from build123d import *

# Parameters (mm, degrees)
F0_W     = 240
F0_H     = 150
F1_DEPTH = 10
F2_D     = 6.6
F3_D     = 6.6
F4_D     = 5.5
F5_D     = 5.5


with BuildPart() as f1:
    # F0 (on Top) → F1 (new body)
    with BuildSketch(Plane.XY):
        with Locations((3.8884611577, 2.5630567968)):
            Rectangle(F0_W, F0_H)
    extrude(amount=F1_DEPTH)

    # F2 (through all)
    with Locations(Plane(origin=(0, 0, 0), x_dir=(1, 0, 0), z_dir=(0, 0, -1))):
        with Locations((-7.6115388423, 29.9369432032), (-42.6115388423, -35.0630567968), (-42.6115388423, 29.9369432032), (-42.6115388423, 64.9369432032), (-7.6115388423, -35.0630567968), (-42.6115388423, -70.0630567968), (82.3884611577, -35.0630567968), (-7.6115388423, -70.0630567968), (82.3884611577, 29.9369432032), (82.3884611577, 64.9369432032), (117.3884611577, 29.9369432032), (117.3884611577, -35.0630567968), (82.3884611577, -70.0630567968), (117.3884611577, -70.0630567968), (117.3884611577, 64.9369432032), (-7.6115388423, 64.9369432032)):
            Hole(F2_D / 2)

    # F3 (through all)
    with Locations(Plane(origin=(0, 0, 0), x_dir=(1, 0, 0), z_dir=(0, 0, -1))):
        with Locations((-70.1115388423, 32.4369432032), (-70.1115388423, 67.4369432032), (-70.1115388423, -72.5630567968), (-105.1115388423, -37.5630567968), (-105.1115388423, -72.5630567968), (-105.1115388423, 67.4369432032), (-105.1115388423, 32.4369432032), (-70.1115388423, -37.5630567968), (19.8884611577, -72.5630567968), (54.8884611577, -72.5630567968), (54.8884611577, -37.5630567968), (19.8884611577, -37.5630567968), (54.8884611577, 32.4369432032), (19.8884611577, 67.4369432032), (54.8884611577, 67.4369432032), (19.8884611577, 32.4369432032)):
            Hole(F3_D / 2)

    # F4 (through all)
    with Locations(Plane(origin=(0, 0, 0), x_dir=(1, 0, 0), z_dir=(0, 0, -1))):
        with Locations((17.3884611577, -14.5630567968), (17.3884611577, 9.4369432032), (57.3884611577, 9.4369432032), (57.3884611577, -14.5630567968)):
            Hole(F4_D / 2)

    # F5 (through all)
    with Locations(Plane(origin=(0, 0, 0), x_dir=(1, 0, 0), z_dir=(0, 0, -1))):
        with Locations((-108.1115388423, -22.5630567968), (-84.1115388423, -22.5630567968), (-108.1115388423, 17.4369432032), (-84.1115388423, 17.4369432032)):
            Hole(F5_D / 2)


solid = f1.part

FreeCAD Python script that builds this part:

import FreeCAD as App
import Part
import Sketcher
Q = App.Units.Quantity

doc = App.newDocument("Part")
params = doc.addObject("Spreadsheet::Sheet", "Params")
for row, (alias, value) in enumerate([
    ("sketch1_width", "240 mm"),
    ("sketch1_height", "150 mm"),
    ("pad1_length", "10 mm"),
    ("sketch2_diameter", "6.6 mm"),
    ("hole_diameter", "6.6 mm"),
    ("sketch3_diameter", "6.6 mm"),
    ("hole2_diameter", "6.6 mm"),
    ("sketch4_diameter", "5.5 mm"),
    ("hole3_diameter", "5.5 mm"),
    ("sketch5_diameter", "5.5 mm"),
    ("hole4_diameter", "5.5 mm"),
], start=1):
    params.set(f"A{row}", alias)
    params.set(f"B{row}", "=" + value)
    params.setAlias(f"B{row}", alias)

body = doc.addObject("PartDesign::Body", "Body")

sketch1 = doc.addObject("Sketcher::SketchObject", "Sketch")
body.addObject(sketch1)
sketch1.AttachmentSupport = (doc.XY_Plane, [""])
sketch1.MapMode = "FlatFace"
sketch1.addGeometry([
    Part.LineSegment(App.Vector(-116, 78, 0), App.Vector(-116, -72, 0)),
    Part.LineSegment(App.Vector(-116, -72, 0), App.Vector(124, -72, 0)),
    Part.LineSegment(App.Vector(124, -72, 0), App.Vector(124, 78, 0)),
    Part.LineSegment(App.Vector(124, 78, 0), App.Vector(-116, 78, 0)),
], False)
sketch1.addConstraint([
    Sketcher.Constraint("Coincident", 0, 2, 1, 1),
    Sketcher.Constraint("Coincident", 1, 2, 2, 1),
    Sketcher.Constraint("Coincident", 2, 2, 3, 1),
    Sketcher.Constraint("Coincident", 3, 2, 0, 1),
    Sketcher.Constraint("Vertical", 0),
    Sketcher.Constraint("Horizontal", 1),
    Sketcher.Constraint("Vertical", 2),
    Sketcher.Constraint("Horizontal", 3),
    Sketcher.Constraint("DistanceX", 1, 1, 1, 2, Q("240 mm")),
    Sketcher.Constraint("DistanceY", 0, 2, 0, 1, Q("150 mm")),
    Sketcher.Constraint("DistanceX", 0, 2, -1, 1, Q("116.111539 mm")),
    Sketcher.Constraint("DistanceY", 0, 2, -1, 1, Q("72.436943 mm")),
])
sketch1.setExpression("Constraints[8]", "Params.sketch1_width")
sketch1.setExpression("Constraints[9]", "Params.sketch1_height")
pad1 = doc.addObject("PartDesign::Pad", "Pad")
body.addObject(pad1)
pad1.Profile = sketch1
pad1.setExpression("Length", "Params.pad1_length")

sketch2 = doc.addObject("Sketcher::SketchObject", "Sketch001")
body.addObject(sketch2)
sketch2.AttachmentSupport = (doc.XY_Plane, [""])
sketch2.MapMode = "FlatFace"
sketch2.addGeometry([
    Part.Circle(App.Vector(-7.6, -29.9, 0), App.Vector(0, 0, 1), 3.3),
    Part.Circle(App.Vector(-42.6, 35.1, 0), App.Vector(0, 0, 1), 3.3),
    Part.Circle(App.Vector(-42.6, -29.9, 0), App.Vector(0, 0, 1), 3.3),
    Part.Circle(App.Vector(-42.6, -64.9, 0), App.Vector(0, 0, 1), 3.3),
    Part.Circle(App.Vector(-7.6, 35.1, 0), App.Vector(0, 0, 1), 3.3),
    Part.Circle(App.Vector(-42.6, 70.1, 0), App.Vector(0, 0, 1), 3.3),
    Part.Circle(App.Vector(82.4, 35.1, 0), App.Vector(0, 0, 1), 3.3),
    Part.Circle(App.Vector(-7.6, 70.1, 0), App.Vector(0, 0, 1), 3.3),
    Part.Circle(App.Vector(82.4, -29.9, 0), App.Vector(0, 0, 1), 3.3),
    Part.Circle(App.Vector(82.4, -64.9, 0), App.Vector(0, 0, 1), 3.3),
    Part.Circle(App.Vector(117.4, -29.9, 0), App.Vector(0, 0, 1), 3.3),
    Part.Circle(App.Vector(117.4, 35.1, 0), App.Vector(0, 0, 1), 3.3),
    Part.Circle(App.Vector(82.4, 70.1, 0), App.Vector(0, 0, 1), 3.3),
    Part.Circle(App.Vector(117.4, 70.1, 0), App.Vector(0, 0, 1), 3.3),
    Part.Circle(App.Vector(117.4, -64.9, 0), App.Vector(0, 0, 1), 3.3),
    Part.Circle(App.Vector(-7.6, -64.9, 0), App.Vector(0, 0, 1), 3.3),
], False)
sketch2.addConstraint([
    Sketcher.Constraint("Equal", 0, 1),
    Sketcher.Constraint("Equal", 1, 2),
    Sketcher.Constraint("Equal", 2, 3),
    Sketcher.Constraint("Equal", 3, 4),
    Sketcher.Constraint("Equal", 4, 5),
    Sketcher.Constraint("Equal", 5, 6),
    Sketcher.Constraint("Equal", 6, 7),
    Sketcher.Constraint("Equal", 7, 8),
    Sketcher.Constraint("Equal", 8, 9),
    Sketcher.Constraint("Equal", 9, 10),
    Sketcher.Constraint("Equal", 10, 11),
    Sketcher.Constraint("Equal", 11, 12),
    Sketcher.Constraint("Equal", 12, 13),
    Sketcher.Constraint("Equal", 13, 14),
    Sketcher.Constraint("Equal", 14, 15),
    Sketcher.Constraint("Horizontal", 0, 3, 2, 3),
    Sketcher.Constraint("Horizontal", 1, 3, 4, 3),
    Sketcher.Constraint("Horizontal", 4, 3, 6, 3),
    Sketcher.Constraint("Horizontal", 5, 3, 7, 3),
    Sketcher.Constraint("Horizontal", 2, 3, 8, 3),
    Sketcher.Constraint("Horizontal", 3, 3, 9, 3),
    Sketcher.Constraint("Horizontal", 8, 3, 10, 3),
    Sketcher.Constraint("Horizontal", 6, 3, 11, 3),
    Sketcher.Constraint("Horizontal", 7, 3, 12, 3),
    Sketcher.Constraint("Horizontal", 12, 3, 13, 3),
    Sketcher.Constraint("Horizontal", 9, 3, 14, 3),
    Sketcher.Constraint("Horizontal", 14, 3, 15, 3),
    Sketcher.Constraint("Vertical", 1, 3, 2, 3),
    Sketcher.Constraint("Vertical", 2, 3, 3, 3),
    Sketcher.Constraint("Vertical", 0, 3, 4, 3),
    Sketcher.Constraint("Vertical", 3, 3, 5, 3),
    Sketcher.Constraint("Vertical", 4, 3, 7, 3),
    Sketcher.Constraint("Vertical", 6, 3, 8, 3),
    Sketcher.Constraint("Vertical", 8, 3, 9, 3),
    Sketcher.Constraint("Vertical", 10, 3, 11, 3),
    Sketcher.Constraint("Vertical", 9, 3, 12, 3),
    Sketcher.Constraint("Vertical", 11, 3, 13, 3),
    Sketcher.Constraint("Vertical", 13, 3, 14, 3),
    Sketcher.Constraint("Vertical", 7, 3, 15, 3),
    Sketcher.Constraint("Diameter", 0, Q("6.6 mm")),
    Sketcher.Constraint("DistanceX", 1, 3, 0, 3, Q("35 mm")),
    Sketcher.Constraint("DistanceY", 0, 3, 1, 3, Q("65 mm")),
    Sketcher.Constraint("DistanceY", 3, 3, 2, 3, Q("35 mm")),
    Sketcher.Constraint("DistanceY", 1, 3, 5, 3, Q("35 mm")),
    Sketcher.Constraint("DistanceX", 4, 3, 6, 3, Q("90 mm")),
    Sketcher.Constraint("DistanceX", 8, 3, 10, 3, Q("35 mm")),
    Sketcher.Constraint("DistanceX", 0, 3, -1, 1, Q("7.611539 mm")),
    Sketcher.Constraint("DistanceY", 0, 3, -1, 1, Q("29.936943 mm")),
])
sketch2.setExpression("Constraints[39]", "Params.sketch2_diameter")
doc.recompute()
hole = doc.addObject("PartDesign::Hole", "Hole")
body.addObject(hole)
hole.Profile = sketch2
hole.ThreadType = "None"
hole.setExpression("Diameter", "Params.hole_diameter")
hole.DepthType = "ThroughAll"
hole.Reversed = True

sketch3 = doc.addObject("Sketcher::SketchObject", "Sketch002")
body.addObject(sketch3)
sketch3.AttachmentSupport = (doc.XY_Plane, [""])
sketch3.MapMode = "FlatFace"
sketch3.addGeometry([
    Part.Circle(App.Vector(-70.1, -32.4, 0), App.Vector(0, 0, 1), 3.3),
    Part.Circle(App.Vector(-70.1, -67.4, 0), App.Vector(0, 0, 1), 3.3),
    Part.Circle(App.Vector(-70.1, 72.6, 0), App.Vector(0, 0, 1), 3.3),
    Part.Circle(App.Vector(-105.1, 37.6, 0), App.Vector(0, 0, 1), 3.3),
    Part.Circle(App.Vector(-105.1, 72.6, 0), App.Vector(0, 0, 1), 3.3),
    Part.Circle(App.Vector(-105.1, -67.4, 0), App.Vector(0, 0, 1), 3.3),
    Part.Circle(App.Vector(-105.1, -32.4, 0), App.Vector(0, 0, 1), 3.3),
    Part.Circle(App.Vector(-70.1, 37.6, 0), App.Vector(0, 0, 1), 3.3),
    Part.Circle(App.Vector(19.9, 72.6, 0), App.Vector(0, 0, 1), 3.3),
    Part.Circle(App.Vector(54.9, 72.6, 0), App.Vector(0, 0, 1), 3.3),
    Part.Circle(App.Vector(54.9, 37.6, 0), App.Vector(0, 0, 1), 3.3),
    Part.Circle(App.Vector(19.9, 37.6, 0), App.Vector(0, 0, 1), 3.3),
    Part.Circle(App.Vector(54.9, -32.4, 0), App.Vector(0, 0, 1), 3.3),
    Part.Circle(App.Vector(19.9, -67.4, 0), App.Vector(0, 0, 1), 3.3),
    Part.Circle(App.Vector(54.9, -67.4, 0), App.Vector(0, 0, 1), 3.3),
    Part.Circle(App.Vector(19.9, -32.4, 0), App.Vector(0, 0, 1), 3.3),
], False)
sketch3.addConstraint([
    Sketcher.Constraint("Equal", 0, 1),
    Sketcher.Constraint("Equal", 1, 2),
    Sketcher.Constraint("Equal", 2, 3),
    Sketcher.Constraint("Equal", 3, 4),
    Sketcher.Constraint("Equal", 4, 5),
    Sketcher.Constraint("Equal", 5, 6),
    Sketcher.Constraint("Equal", 6, 7),
    Sketcher.Constraint("Equal", 7, 8),
    Sketcher.Constraint("Equal", 8, 9),
    Sketcher.Constraint("Equal", 9, 10),
    Sketcher.Constraint("Equal", 10, 11),
    Sketcher.Constraint("Equal", 11, 12),
    Sketcher.Constraint("Equal", 12, 13),
    Sketcher.Constraint("Equal", 13, 14),
    Sketcher.Constraint("Equal", 14, 15),
    Sketcher.Constraint("Horizontal", 2, 3, 4, 3),
    Sketcher.Constraint("Horizontal", 1, 3, 5, 3),
    Sketcher.Constraint("Horizontal", 0, 3, 6, 3),
    Sketcher.Constraint("Horizontal", 3, 3, 7, 3),
    Sketcher.Constraint("Horizontal", 4, 3, 8, 3),
    Sketcher.Constraint("Horizontal", 8, 3, 9, 3),
    Sketcher.Constraint("Horizontal", 7, 3, 10, 3),
    Sketcher.Constraint("Horizontal", 10, 3, 11, 3),
    Sketcher.Constraint("Horizontal", 6, 3, 12, 3),
    Sketcher.Constraint("Horizontal", 5, 3, 13, 3),
    Sketcher.Constraint("Horizontal", 13, 3, 14, 3),
    Sketcher.Constraint("Horizontal", 12, 3, 15, 3),
    Sketcher.Constraint("Vertical", 0, 3, 1, 3),
    Sketcher.Constraint("Vertical", 1, 3, 2, 3),
    Sketcher.Constraint("Vertical", 3, 3, 4, 3),
    Sketcher.Constraint("Vertical", 4, 3, 5, 3),
    Sketcher.Constraint("Vertical", 5, 3, 6, 3),
    Sketcher.Constraint("Vertical", 2, 3, 7, 3),
    Sketcher.Constraint("Vertical", 9, 3, 10, 3),
    Sketcher.Constraint("Vertical", 8, 3, 11, 3),
    Sketcher.Constraint("Vertical", 10, 3, 12, 3),
    Sketcher.Constraint("Vertical", 11, 3, 13, 3),
    Sketcher.Constraint("Vertical", 12, 3, 14, 3),
    Sketcher.Constraint("Vertical", 13, 3, 15, 3),
    Sketcher.Constraint("Diameter", 0, Q("6.6 mm")),
    Sketcher.Constraint("DistanceY", 1, 3, 0, 3, Q("35 mm")),
    Sketcher.Constraint("DistanceY", 0, 3, 2, 3, Q("105 mm")),
    Sketcher.Constraint("DistanceX", 3, 3, 2, 3, Q("35 mm")),
    Sketcher.Constraint("DistanceY", 3, 3, 2, 3, Q("35 mm")),
    Sketcher.Constraint("DistanceX", 2, 3, 8, 3, Q("90 mm")),
    Sketcher.Constraint("DistanceX", 8, 3, 9, 3, Q("35 mm")),
    Sketcher.Constraint("DistanceX", 0, 3, -1, 1, Q("70.111539 mm")),
    Sketcher.Constraint("DistanceY", 0, 3, -1, 1, Q("32.436943 mm")),
])
sketch3.setExpression("Constraints[39]", "Params.sketch3_diameter")
doc.recompute()
hole2 = doc.addObject("PartDesign::Hole", "Hole001")
body.addObject(hole2)
hole2.Profile = sketch3
hole2.ThreadType = "None"
hole2.setExpression("Diameter", "Params.hole2_diameter")
hole2.DepthType = "ThroughAll"
hole2.Reversed = True

sketch4 = doc.addObject("Sketcher::SketchObject", "Sketch003")
body.addObject(sketch4)
sketch4.AttachmentSupport = (doc.XY_Plane, [""])
sketch4.MapMode = "FlatFace"
sketch4.addGeometry([
    Part.Circle(App.Vector(17.4, 14.6, 0), App.Vector(0, 0, 1), 2.8),
    Part.Circle(App.Vector(17.4, -9.4, 0), App.Vector(0, 0, 1), 2.8),
    Part.Circle(App.Vector(57.4, -9.4, 0), App.Vector(0, 0, 1), 2.8),
    Part.Circle(App.Vector(57.4, 14.6, 0), App.Vector(0, 0, 1), 2.8),
], False)
sketch4.addConstraint([
    Sketcher.Constraint("Equal", 0, 1),
    Sketcher.Constraint("Equal", 1, 2),
    Sketcher.Constraint("Equal", 2, 3),
    Sketcher.Constraint("Horizontal", 1, 3, 2, 3),
    Sketcher.Constraint("Horizontal", 0, 3, 3, 3),
    Sketcher.Constraint("Vertical", 0, 3, 1, 3),
    Sketcher.Constraint("Vertical", 2, 3, 3, 3),
    Sketcher.Constraint("Diameter", 0, Q("5.5 mm")),
    Sketcher.Constraint("DistanceY", 1, 3, 0, 3, Q("24 mm")),
    Sketcher.Constraint("DistanceX", 1, 3, 2, 3, Q("40 mm")),
    Sketcher.Constraint("DistanceX", -1, 1, 0, 3, Q("17.388461 mm")),
    Sketcher.Constraint("DistanceY", -1, 1, 0, 3, Q("14.563057 mm")),
])
sketch4.setExpression("Constraints[7]", "Params.sketch4_diameter")
doc.recompute()
hole3 = doc.addObject("PartDesign::Hole", "Hole002")
body.addObject(hole3)
hole3.Profile = sketch4
hole3.ThreadType = "None"
hole3.setExpression("Diameter", "Params.hole3_diameter")
hole3.DepthType = "ThroughAll"
hole3.Reversed = True

sketch5 = doc.addObject("Sketcher::SketchObject", "Sketch004")
body.addObject(sketch5)
sketch5.AttachmentSupport = (doc.XY_Plane, [""])
sketch5.MapMode = "FlatFace"
sketch5.addGeometry([
    Part.Circle(App.Vector(-108.1, 22.6, 0), App.Vector(0, 0, 1), 2.8),
    Part.Circle(App.Vector(-84.1, 22.6, 0), App.Vector(0, 0, 1), 2.8),
    Part.Circle(App.Vector(-108.1, -17.4, 0), App.Vector(0, 0, 1), 2.8),
    Part.Circle(App.Vector(-84.1, -17.4, 0), App.Vector(0, 0, 1), 2.8),
], False)
sketch5.addConstraint([
    Sketcher.Constraint("Equal", 0, 1),
    Sketcher.Constraint("Equal", 1, 2),
    Sketcher.Constraint("Equal", 2, 3),
    Sketcher.Constraint("Horizontal", 0, 3, 1, 3),
    Sketcher.Constraint("Horizontal", 2, 3, 3, 3),
    Sketcher.Constraint("Vertical", 0, 3, 2, 3),
    Sketcher.Constraint("Vertical", 1, 3, 3, 3),
    Sketcher.Constraint("Diameter", 0, Q("5.5 mm")),
    Sketcher.Constraint("DistanceX", 0, 3, 1, 3, Q("24 mm")),
    Sketcher.Constraint("DistanceY", 2, 3, 0, 3, Q("40 mm")),
    Sketcher.Constraint("DistanceX", 0, 3, -1, 1, Q("108.111539 mm")),
    Sketcher.Constraint("DistanceY", -1, 1, 0, 3, Q("22.563057 mm")),
])
sketch5.setExpression("Constraints[7]", "Params.sketch5_diameter")
doc.recompute()
hole4 = doc.addObject("PartDesign::Hole", "Hole003")
body.addObject(hole4)
hole4.Profile = sketch5
hole4.ThreadType = "None"
hole4.setExpression("Diameter", "Params.hole4_diameter")
hole4.DepthType = "ThroughAll"
hole4.Reversed = True

doc.recompute()
